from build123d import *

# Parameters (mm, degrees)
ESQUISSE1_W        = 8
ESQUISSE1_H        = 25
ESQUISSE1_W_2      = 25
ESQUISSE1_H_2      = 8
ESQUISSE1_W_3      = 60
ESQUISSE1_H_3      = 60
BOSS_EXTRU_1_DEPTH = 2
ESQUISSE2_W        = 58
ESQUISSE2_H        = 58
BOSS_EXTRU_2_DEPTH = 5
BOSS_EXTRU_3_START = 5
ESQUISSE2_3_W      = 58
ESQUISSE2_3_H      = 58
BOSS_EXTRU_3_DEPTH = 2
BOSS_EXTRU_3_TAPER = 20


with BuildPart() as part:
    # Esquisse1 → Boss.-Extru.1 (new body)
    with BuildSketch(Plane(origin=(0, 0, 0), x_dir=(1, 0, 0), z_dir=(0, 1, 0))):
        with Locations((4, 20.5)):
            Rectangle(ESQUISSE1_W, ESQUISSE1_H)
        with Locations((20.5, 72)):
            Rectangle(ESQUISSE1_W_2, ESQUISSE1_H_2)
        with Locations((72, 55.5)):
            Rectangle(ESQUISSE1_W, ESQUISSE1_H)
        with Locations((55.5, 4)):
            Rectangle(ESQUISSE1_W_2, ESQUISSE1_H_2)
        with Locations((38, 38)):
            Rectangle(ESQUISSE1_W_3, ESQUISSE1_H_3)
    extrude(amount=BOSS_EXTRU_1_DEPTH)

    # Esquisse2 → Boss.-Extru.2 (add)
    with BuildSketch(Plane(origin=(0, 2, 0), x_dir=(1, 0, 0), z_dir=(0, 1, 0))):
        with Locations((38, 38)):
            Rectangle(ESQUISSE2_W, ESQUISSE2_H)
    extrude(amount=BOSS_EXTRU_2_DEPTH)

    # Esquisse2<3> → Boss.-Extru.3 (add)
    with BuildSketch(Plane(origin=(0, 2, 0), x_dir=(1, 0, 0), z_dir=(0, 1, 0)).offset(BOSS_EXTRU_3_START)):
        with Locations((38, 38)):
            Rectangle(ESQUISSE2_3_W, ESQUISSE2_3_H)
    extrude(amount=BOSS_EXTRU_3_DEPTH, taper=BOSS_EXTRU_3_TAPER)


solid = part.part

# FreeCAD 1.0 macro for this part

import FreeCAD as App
import Part
import Sketcher

doc = App.newDocument("Part")
params = doc.addObject("Spreadsheet::Sheet", "Params")
for row, (alias, value) in enumerate([
    ("sketch1_width", "43 mm"),
    ("sketch1_width2", "25 mm"),
    ("sketch1_width3", "8 mm"),
    ("pad1_length", "2 mm"),
    ("sketch2_width", "58 mm"),
    ("pad2_length", "5 mm"),
    ("sketch3_width", "58 mm"),
    ("pad3_length", "2 mm"),
    ("pad3_taper", "-20 deg"),
], start=1):
    params.set(f"A{row}", alias)
    params.set(f"B{row}", "=" + value)
    params.setAlias(f"B{row}", alias)

body = doc.addObject("PartDesign::Body", "Body")

sketch1 = body.newObject("Sketcher::SketchObject", "Sketch")
sketch1.AttachmentSupport = (doc.getObject("XZ_Plane"), [""])
sketch1.MapMode = "FlatFace"
sketch1.addGeometry(Part.LineSegment(App.Vector(0, -33, 0), App.Vector(0, -8, 0)), False)
sketch1.addGeometry(Part.LineSegment(App.Vector(0, -8, 0), App.Vector(43, -8, 0)), False)
sketch1.addGeometry(Part.LineSegment(App.Vector(43, -8, 0), App.Vector(43, 0, 0)), False)
sketch1.addGeometry(Part.LineSegment(App.Vector(43, 0, 0), App.Vector(68, 0, 0)), False)
sketch1.addGeometry(Part.LineSegment(App.Vector(68, 0, 0), App.Vector(68, -43, 0)), False)
sketch1.addGeometry(Part.LineSegment(App.Vector(68, -43, 0), App.Vector(76, -43, 0)), False)
sketch1.addGeometry(Part.LineSegment(App.Vector(76, -43, 0), App.Vector(76, -68, 0)), False)
sketch1.addGeometry(Part.LineSegment(App.Vector(76, -68, 0), App.Vector(33, -68, 0)), False)
sketch1.addGeometry(Part.LineSegment(App.Vector(33, -68, 0), App.Vector(33, -76, 0)), False)
sketch1.addGeometry(Part.LineSegment(App.Vector(33, -76, 0), App.Vector(8, -76, 0)), False)
sketch1.addGeometry(Part.LineSegment(App.Vector(8, -76, 0), App.Vector(8, -33, 0)), False)
sketch1.addGeometry(Part.LineSegment(App.Vector(8, -33, 0), App.Vector(0, -33, 0)), False)
sketch1.addConstraint(Sketcher.Constraint("Coincident", 0, 2, 1, 1))
sketch1.addConstraint(Sketcher.Constraint("Coincident", 1, 2, 2, 1))
sketch1.addConstraint(Sketcher.Constraint("Coincident", 2, 2, 3, 1))
sketch1.addConstraint(Sketcher.Constraint("Coincident", 3, 2, 4, 1))
sketch1.addConstraint(Sketcher.Constraint("Coincident", 4, 2, 5, 1))
sketch1.addConstraint(Sketcher.Constraint("Coincident", 5, 2, 6, 1))
sketch1.addConstraint(Sketcher.Constraint("Coincident", 6, 2, 7, 1))
sketch1.addConstraint(Sketcher.Constraint("Coincident", 7, 2, 8, 1))
sketch1.addConstraint(Sketcher.Constraint("Coincident", 8, 2, 9, 1))
sketch1.addConstraint(Sketcher.Constraint("Coincident", 9, 2, 10, 1))
sketch1.addConstraint(Sketcher.Constraint("Coincident", 10, 2, 11, 1))
sketch1.addConstraint(Sketcher.Constraint("Coincident", 11, 2, 0, 1))
sketch1.addConstraint(Sketcher.Constraint("Vertical", 0))
sketch1.addConstraint(Sketcher.Constraint("Horizontal", 1))
sketch1.addConstraint(Sketcher.Constraint("Vertical", 2))
sketch1.addConstraint(Sketcher.Constraint("Horizontal", 3))
sketch1.addConstraint(Sketcher.Constraint("Vertical", 4))
sketch1.addConstraint(Sketcher.Constraint("Horizontal", 5))
sketch1.addConstraint(Sketcher.Constraint("Vertical", 6))
sketch1.addConstraint(Sketcher.Constraint("Horizontal", 7))
sketch1.addConstraint(Sketcher.Constraint("Vertical", 8))
sketch1.addConstraint(Sketcher.Constraint("Horizontal", 9))
sketch1.addConstraint(Sketcher.Constraint("Vertical", 10))
sketch1.addConstraint(Sketcher.Constraint("Horizontal", 11))
sketch1.addConstraint(Sketcher.Constraint("PointOnObject", 0, 2, -2))
sketch1.addConstraint(Sketcher.Constraint("PointOnObject", 2, 2, -1))
sketch1.addConstraint(Sketcher.Constraint("Equal", 1, 7))
sketch1.addConstraint(Sketcher.Constraint("Equal", 3, 9))
sketch1.addConstraint(Sketcher.Constraint("Equal", 9, 0))
sketch1.addConstraint(Sketcher.Constraint("Equal", 11, 2))
sketch1.addConstraint(Sketcher.Constraint("Equal", 7, 4))
sketch1.addConstraint(Sketcher.Constraint("Equal", 0, 6))
sketch1.addConstraint(Sketcher.Constraint("Equal", 2, 8))
sketch1.addConstraint(Sketcher.Constraint("DistanceX", 1, 1, 1, 2, 43.0))
sketch1.addConstraint(Sketcher.Constraint("DistanceX", 3, 1, 3, 2, 25.0))
sketch1.addConstraint(Sketcher.Constraint("DistanceX", 5, 1, 5, 2, 8.0))
sketch1.setExpression("Constraints[33]", "Params.sketch1_width")
sketch1.setExpression("Constraints[34]", "Params.sketch1_width2")
sketch1.setExpression("Constraints[35]", "Params.sketch1_width3")
pad1 = body.newObject("PartDesign::Pad", "Pad")
pad1.Profile = sketch1
pad1.setExpression("Length", "Params.pad1_length")
pad1.Reversed = True

sketch2 = body.newObject("Sketcher::SketchObject", "Sketch001")
sketch2.AttachmentSupport = (doc.getObject("XZ_Plane"), [""])
sketch2.MapMode = "FlatFace"
sketch2.AttachmentOffset = App.Placement(App.Vector(0, 0, -2), App.Rotation())
sketch2.addGeometry(Part.LineSegment(App.Vector(9, -67, 0), App.Vector(9, -9, 0)), False)
sketch2.addGeometry(Part.LineSegment(App.Vector(9, -9, 0), App.Vector(67, -9, 0)), False)
sketch2.addGeometry(Part.LineSegment(App.Vector(67, -9, 0), App.Vector(67, -67, 0)), False)
sketch2.addGeometry(Part.LineSegment(App.Vector(67, -67, 0), App.Vector(9, -67, 0)), False)
sketch2.addConstraint(Sketcher.Constraint("Coincident", 0, 2, 1, 1))
sketch2.addConstraint(Sketcher.Constraint("Coincident", 1, 2, 2, 1))
sketch2.addConstraint(Sketcher.Constraint("Coincident", 2, 2, 3, 1))
sketch2.addConstraint(Sketcher.Constraint("Coincident", 3, 2, 0, 1))
sketch2.addConstraint(Sketcher.Constraint("Vertical", 0))
sketch2.addConstraint(Sketcher.Constraint("Horizontal", 1))
sketch2.addConstraint(Sketcher.Constraint("Vertical", 2))
sketch2.addConstraint(Sketcher.Constraint("Horizontal", 3))
sketch2.addConstraint(Sketcher.Constraint("Equal", 3, 0))
sketch2.addConstraint(Sketcher.Constraint("DistanceX", 1, 1, 1, 2, 58.0))
sketch2.addConstraint(Sketcher.Constraint("DistanceX", -1, 1, 0, 2, 9.0))
sketch2.addConstraint(Sketcher.Constraint("DistanceY", 0, 2, -1, 1, 9.0))
sketch2.setExpression("Constraints[9]", "Params.sketch2_width")
pad2 = body.newObject("PartDesign::Pad", "Pad001")
pad2.Profile = sketch2
pad2.setExpression("Length", "Params.pad2_length")
pad2.Reversed = True

sketch3 = body.newObject("Sketcher::SketchObject", "Sketch002")
sketch3.AttachmentSupport = (doc.getObject("XZ_Plane"), [""])
sketch3.MapMode = "FlatFace"
sketch3.AttachmentOffset = App.Placement(App.Vector(0, 0, -7), App.Rotation())
sketch3.addGeometry(Part.LineSegment(App.Vector(9, -67, 0), App.Vector(9, -9, 0)), False)
sketch3.addGeometry(Part.LineSegment(App.Vector(9, -9, 0), App.Vector(67, -9, 0)), False)
sketch3.addGeometry(Part.LineSegment(App.Vector(67, -9, 0), App.Vector(67, -67, 0)), False)
sketch3.addGeometry(Part.LineSegment(App.Vector(67, -67, 0), App.Vector(9, -67, 0)), False)
sketch3.addConstraint(Sketcher.Constraint("Coincident", 0, 2, 1, 1))
sketch3.addConstraint(Sketcher.Constraint("Coincident", 1, 2, 2, 1))
sketch3.addConstraint(Sketcher.Constraint("Coincident", 2, 2, 3, 1))
sketch3.addConstraint(Sketcher.Constraint("Coincident", 3, 2, 0, 1))
sketch3.addConstraint(Sketcher.Constraint("Vertical", 0))
sketch3.addConstraint(Sketcher.Constraint("Horizontal", 1))
sketch3.addConstraint(Sketcher.Constraint("Vertical", 2))
sketch3.addConstraint(Sketcher.Constraint("Horizontal", 3))
sketch3.addConstraint(Sketcher.Constraint("Equal", 3, 0))
sketch3.addConstraint(Sketcher.Constraint("DistanceX", 1, 1, 1, 2, 58.0))
sketch3.addConstraint(Sketcher.Constraint("DistanceX", -1, 1, 0, 2, 9.0))
sketch3.addConstraint(Sketcher.Constraint("DistanceY", 0, 2, -1, 1, 9.0))
sketch3.setExpression("Constraints[9]", "Params.sketch3_width")
pad3 = body.newObject("PartDesign::Pad", "Pad002")
pad3.Profile = sketch3
pad3.setExpression("Length", "Params.pad3_length")
pad3.Reversed = True
pad3.setExpression("TaperAngle", "Params.pad3_taper")

doc.recompute()
